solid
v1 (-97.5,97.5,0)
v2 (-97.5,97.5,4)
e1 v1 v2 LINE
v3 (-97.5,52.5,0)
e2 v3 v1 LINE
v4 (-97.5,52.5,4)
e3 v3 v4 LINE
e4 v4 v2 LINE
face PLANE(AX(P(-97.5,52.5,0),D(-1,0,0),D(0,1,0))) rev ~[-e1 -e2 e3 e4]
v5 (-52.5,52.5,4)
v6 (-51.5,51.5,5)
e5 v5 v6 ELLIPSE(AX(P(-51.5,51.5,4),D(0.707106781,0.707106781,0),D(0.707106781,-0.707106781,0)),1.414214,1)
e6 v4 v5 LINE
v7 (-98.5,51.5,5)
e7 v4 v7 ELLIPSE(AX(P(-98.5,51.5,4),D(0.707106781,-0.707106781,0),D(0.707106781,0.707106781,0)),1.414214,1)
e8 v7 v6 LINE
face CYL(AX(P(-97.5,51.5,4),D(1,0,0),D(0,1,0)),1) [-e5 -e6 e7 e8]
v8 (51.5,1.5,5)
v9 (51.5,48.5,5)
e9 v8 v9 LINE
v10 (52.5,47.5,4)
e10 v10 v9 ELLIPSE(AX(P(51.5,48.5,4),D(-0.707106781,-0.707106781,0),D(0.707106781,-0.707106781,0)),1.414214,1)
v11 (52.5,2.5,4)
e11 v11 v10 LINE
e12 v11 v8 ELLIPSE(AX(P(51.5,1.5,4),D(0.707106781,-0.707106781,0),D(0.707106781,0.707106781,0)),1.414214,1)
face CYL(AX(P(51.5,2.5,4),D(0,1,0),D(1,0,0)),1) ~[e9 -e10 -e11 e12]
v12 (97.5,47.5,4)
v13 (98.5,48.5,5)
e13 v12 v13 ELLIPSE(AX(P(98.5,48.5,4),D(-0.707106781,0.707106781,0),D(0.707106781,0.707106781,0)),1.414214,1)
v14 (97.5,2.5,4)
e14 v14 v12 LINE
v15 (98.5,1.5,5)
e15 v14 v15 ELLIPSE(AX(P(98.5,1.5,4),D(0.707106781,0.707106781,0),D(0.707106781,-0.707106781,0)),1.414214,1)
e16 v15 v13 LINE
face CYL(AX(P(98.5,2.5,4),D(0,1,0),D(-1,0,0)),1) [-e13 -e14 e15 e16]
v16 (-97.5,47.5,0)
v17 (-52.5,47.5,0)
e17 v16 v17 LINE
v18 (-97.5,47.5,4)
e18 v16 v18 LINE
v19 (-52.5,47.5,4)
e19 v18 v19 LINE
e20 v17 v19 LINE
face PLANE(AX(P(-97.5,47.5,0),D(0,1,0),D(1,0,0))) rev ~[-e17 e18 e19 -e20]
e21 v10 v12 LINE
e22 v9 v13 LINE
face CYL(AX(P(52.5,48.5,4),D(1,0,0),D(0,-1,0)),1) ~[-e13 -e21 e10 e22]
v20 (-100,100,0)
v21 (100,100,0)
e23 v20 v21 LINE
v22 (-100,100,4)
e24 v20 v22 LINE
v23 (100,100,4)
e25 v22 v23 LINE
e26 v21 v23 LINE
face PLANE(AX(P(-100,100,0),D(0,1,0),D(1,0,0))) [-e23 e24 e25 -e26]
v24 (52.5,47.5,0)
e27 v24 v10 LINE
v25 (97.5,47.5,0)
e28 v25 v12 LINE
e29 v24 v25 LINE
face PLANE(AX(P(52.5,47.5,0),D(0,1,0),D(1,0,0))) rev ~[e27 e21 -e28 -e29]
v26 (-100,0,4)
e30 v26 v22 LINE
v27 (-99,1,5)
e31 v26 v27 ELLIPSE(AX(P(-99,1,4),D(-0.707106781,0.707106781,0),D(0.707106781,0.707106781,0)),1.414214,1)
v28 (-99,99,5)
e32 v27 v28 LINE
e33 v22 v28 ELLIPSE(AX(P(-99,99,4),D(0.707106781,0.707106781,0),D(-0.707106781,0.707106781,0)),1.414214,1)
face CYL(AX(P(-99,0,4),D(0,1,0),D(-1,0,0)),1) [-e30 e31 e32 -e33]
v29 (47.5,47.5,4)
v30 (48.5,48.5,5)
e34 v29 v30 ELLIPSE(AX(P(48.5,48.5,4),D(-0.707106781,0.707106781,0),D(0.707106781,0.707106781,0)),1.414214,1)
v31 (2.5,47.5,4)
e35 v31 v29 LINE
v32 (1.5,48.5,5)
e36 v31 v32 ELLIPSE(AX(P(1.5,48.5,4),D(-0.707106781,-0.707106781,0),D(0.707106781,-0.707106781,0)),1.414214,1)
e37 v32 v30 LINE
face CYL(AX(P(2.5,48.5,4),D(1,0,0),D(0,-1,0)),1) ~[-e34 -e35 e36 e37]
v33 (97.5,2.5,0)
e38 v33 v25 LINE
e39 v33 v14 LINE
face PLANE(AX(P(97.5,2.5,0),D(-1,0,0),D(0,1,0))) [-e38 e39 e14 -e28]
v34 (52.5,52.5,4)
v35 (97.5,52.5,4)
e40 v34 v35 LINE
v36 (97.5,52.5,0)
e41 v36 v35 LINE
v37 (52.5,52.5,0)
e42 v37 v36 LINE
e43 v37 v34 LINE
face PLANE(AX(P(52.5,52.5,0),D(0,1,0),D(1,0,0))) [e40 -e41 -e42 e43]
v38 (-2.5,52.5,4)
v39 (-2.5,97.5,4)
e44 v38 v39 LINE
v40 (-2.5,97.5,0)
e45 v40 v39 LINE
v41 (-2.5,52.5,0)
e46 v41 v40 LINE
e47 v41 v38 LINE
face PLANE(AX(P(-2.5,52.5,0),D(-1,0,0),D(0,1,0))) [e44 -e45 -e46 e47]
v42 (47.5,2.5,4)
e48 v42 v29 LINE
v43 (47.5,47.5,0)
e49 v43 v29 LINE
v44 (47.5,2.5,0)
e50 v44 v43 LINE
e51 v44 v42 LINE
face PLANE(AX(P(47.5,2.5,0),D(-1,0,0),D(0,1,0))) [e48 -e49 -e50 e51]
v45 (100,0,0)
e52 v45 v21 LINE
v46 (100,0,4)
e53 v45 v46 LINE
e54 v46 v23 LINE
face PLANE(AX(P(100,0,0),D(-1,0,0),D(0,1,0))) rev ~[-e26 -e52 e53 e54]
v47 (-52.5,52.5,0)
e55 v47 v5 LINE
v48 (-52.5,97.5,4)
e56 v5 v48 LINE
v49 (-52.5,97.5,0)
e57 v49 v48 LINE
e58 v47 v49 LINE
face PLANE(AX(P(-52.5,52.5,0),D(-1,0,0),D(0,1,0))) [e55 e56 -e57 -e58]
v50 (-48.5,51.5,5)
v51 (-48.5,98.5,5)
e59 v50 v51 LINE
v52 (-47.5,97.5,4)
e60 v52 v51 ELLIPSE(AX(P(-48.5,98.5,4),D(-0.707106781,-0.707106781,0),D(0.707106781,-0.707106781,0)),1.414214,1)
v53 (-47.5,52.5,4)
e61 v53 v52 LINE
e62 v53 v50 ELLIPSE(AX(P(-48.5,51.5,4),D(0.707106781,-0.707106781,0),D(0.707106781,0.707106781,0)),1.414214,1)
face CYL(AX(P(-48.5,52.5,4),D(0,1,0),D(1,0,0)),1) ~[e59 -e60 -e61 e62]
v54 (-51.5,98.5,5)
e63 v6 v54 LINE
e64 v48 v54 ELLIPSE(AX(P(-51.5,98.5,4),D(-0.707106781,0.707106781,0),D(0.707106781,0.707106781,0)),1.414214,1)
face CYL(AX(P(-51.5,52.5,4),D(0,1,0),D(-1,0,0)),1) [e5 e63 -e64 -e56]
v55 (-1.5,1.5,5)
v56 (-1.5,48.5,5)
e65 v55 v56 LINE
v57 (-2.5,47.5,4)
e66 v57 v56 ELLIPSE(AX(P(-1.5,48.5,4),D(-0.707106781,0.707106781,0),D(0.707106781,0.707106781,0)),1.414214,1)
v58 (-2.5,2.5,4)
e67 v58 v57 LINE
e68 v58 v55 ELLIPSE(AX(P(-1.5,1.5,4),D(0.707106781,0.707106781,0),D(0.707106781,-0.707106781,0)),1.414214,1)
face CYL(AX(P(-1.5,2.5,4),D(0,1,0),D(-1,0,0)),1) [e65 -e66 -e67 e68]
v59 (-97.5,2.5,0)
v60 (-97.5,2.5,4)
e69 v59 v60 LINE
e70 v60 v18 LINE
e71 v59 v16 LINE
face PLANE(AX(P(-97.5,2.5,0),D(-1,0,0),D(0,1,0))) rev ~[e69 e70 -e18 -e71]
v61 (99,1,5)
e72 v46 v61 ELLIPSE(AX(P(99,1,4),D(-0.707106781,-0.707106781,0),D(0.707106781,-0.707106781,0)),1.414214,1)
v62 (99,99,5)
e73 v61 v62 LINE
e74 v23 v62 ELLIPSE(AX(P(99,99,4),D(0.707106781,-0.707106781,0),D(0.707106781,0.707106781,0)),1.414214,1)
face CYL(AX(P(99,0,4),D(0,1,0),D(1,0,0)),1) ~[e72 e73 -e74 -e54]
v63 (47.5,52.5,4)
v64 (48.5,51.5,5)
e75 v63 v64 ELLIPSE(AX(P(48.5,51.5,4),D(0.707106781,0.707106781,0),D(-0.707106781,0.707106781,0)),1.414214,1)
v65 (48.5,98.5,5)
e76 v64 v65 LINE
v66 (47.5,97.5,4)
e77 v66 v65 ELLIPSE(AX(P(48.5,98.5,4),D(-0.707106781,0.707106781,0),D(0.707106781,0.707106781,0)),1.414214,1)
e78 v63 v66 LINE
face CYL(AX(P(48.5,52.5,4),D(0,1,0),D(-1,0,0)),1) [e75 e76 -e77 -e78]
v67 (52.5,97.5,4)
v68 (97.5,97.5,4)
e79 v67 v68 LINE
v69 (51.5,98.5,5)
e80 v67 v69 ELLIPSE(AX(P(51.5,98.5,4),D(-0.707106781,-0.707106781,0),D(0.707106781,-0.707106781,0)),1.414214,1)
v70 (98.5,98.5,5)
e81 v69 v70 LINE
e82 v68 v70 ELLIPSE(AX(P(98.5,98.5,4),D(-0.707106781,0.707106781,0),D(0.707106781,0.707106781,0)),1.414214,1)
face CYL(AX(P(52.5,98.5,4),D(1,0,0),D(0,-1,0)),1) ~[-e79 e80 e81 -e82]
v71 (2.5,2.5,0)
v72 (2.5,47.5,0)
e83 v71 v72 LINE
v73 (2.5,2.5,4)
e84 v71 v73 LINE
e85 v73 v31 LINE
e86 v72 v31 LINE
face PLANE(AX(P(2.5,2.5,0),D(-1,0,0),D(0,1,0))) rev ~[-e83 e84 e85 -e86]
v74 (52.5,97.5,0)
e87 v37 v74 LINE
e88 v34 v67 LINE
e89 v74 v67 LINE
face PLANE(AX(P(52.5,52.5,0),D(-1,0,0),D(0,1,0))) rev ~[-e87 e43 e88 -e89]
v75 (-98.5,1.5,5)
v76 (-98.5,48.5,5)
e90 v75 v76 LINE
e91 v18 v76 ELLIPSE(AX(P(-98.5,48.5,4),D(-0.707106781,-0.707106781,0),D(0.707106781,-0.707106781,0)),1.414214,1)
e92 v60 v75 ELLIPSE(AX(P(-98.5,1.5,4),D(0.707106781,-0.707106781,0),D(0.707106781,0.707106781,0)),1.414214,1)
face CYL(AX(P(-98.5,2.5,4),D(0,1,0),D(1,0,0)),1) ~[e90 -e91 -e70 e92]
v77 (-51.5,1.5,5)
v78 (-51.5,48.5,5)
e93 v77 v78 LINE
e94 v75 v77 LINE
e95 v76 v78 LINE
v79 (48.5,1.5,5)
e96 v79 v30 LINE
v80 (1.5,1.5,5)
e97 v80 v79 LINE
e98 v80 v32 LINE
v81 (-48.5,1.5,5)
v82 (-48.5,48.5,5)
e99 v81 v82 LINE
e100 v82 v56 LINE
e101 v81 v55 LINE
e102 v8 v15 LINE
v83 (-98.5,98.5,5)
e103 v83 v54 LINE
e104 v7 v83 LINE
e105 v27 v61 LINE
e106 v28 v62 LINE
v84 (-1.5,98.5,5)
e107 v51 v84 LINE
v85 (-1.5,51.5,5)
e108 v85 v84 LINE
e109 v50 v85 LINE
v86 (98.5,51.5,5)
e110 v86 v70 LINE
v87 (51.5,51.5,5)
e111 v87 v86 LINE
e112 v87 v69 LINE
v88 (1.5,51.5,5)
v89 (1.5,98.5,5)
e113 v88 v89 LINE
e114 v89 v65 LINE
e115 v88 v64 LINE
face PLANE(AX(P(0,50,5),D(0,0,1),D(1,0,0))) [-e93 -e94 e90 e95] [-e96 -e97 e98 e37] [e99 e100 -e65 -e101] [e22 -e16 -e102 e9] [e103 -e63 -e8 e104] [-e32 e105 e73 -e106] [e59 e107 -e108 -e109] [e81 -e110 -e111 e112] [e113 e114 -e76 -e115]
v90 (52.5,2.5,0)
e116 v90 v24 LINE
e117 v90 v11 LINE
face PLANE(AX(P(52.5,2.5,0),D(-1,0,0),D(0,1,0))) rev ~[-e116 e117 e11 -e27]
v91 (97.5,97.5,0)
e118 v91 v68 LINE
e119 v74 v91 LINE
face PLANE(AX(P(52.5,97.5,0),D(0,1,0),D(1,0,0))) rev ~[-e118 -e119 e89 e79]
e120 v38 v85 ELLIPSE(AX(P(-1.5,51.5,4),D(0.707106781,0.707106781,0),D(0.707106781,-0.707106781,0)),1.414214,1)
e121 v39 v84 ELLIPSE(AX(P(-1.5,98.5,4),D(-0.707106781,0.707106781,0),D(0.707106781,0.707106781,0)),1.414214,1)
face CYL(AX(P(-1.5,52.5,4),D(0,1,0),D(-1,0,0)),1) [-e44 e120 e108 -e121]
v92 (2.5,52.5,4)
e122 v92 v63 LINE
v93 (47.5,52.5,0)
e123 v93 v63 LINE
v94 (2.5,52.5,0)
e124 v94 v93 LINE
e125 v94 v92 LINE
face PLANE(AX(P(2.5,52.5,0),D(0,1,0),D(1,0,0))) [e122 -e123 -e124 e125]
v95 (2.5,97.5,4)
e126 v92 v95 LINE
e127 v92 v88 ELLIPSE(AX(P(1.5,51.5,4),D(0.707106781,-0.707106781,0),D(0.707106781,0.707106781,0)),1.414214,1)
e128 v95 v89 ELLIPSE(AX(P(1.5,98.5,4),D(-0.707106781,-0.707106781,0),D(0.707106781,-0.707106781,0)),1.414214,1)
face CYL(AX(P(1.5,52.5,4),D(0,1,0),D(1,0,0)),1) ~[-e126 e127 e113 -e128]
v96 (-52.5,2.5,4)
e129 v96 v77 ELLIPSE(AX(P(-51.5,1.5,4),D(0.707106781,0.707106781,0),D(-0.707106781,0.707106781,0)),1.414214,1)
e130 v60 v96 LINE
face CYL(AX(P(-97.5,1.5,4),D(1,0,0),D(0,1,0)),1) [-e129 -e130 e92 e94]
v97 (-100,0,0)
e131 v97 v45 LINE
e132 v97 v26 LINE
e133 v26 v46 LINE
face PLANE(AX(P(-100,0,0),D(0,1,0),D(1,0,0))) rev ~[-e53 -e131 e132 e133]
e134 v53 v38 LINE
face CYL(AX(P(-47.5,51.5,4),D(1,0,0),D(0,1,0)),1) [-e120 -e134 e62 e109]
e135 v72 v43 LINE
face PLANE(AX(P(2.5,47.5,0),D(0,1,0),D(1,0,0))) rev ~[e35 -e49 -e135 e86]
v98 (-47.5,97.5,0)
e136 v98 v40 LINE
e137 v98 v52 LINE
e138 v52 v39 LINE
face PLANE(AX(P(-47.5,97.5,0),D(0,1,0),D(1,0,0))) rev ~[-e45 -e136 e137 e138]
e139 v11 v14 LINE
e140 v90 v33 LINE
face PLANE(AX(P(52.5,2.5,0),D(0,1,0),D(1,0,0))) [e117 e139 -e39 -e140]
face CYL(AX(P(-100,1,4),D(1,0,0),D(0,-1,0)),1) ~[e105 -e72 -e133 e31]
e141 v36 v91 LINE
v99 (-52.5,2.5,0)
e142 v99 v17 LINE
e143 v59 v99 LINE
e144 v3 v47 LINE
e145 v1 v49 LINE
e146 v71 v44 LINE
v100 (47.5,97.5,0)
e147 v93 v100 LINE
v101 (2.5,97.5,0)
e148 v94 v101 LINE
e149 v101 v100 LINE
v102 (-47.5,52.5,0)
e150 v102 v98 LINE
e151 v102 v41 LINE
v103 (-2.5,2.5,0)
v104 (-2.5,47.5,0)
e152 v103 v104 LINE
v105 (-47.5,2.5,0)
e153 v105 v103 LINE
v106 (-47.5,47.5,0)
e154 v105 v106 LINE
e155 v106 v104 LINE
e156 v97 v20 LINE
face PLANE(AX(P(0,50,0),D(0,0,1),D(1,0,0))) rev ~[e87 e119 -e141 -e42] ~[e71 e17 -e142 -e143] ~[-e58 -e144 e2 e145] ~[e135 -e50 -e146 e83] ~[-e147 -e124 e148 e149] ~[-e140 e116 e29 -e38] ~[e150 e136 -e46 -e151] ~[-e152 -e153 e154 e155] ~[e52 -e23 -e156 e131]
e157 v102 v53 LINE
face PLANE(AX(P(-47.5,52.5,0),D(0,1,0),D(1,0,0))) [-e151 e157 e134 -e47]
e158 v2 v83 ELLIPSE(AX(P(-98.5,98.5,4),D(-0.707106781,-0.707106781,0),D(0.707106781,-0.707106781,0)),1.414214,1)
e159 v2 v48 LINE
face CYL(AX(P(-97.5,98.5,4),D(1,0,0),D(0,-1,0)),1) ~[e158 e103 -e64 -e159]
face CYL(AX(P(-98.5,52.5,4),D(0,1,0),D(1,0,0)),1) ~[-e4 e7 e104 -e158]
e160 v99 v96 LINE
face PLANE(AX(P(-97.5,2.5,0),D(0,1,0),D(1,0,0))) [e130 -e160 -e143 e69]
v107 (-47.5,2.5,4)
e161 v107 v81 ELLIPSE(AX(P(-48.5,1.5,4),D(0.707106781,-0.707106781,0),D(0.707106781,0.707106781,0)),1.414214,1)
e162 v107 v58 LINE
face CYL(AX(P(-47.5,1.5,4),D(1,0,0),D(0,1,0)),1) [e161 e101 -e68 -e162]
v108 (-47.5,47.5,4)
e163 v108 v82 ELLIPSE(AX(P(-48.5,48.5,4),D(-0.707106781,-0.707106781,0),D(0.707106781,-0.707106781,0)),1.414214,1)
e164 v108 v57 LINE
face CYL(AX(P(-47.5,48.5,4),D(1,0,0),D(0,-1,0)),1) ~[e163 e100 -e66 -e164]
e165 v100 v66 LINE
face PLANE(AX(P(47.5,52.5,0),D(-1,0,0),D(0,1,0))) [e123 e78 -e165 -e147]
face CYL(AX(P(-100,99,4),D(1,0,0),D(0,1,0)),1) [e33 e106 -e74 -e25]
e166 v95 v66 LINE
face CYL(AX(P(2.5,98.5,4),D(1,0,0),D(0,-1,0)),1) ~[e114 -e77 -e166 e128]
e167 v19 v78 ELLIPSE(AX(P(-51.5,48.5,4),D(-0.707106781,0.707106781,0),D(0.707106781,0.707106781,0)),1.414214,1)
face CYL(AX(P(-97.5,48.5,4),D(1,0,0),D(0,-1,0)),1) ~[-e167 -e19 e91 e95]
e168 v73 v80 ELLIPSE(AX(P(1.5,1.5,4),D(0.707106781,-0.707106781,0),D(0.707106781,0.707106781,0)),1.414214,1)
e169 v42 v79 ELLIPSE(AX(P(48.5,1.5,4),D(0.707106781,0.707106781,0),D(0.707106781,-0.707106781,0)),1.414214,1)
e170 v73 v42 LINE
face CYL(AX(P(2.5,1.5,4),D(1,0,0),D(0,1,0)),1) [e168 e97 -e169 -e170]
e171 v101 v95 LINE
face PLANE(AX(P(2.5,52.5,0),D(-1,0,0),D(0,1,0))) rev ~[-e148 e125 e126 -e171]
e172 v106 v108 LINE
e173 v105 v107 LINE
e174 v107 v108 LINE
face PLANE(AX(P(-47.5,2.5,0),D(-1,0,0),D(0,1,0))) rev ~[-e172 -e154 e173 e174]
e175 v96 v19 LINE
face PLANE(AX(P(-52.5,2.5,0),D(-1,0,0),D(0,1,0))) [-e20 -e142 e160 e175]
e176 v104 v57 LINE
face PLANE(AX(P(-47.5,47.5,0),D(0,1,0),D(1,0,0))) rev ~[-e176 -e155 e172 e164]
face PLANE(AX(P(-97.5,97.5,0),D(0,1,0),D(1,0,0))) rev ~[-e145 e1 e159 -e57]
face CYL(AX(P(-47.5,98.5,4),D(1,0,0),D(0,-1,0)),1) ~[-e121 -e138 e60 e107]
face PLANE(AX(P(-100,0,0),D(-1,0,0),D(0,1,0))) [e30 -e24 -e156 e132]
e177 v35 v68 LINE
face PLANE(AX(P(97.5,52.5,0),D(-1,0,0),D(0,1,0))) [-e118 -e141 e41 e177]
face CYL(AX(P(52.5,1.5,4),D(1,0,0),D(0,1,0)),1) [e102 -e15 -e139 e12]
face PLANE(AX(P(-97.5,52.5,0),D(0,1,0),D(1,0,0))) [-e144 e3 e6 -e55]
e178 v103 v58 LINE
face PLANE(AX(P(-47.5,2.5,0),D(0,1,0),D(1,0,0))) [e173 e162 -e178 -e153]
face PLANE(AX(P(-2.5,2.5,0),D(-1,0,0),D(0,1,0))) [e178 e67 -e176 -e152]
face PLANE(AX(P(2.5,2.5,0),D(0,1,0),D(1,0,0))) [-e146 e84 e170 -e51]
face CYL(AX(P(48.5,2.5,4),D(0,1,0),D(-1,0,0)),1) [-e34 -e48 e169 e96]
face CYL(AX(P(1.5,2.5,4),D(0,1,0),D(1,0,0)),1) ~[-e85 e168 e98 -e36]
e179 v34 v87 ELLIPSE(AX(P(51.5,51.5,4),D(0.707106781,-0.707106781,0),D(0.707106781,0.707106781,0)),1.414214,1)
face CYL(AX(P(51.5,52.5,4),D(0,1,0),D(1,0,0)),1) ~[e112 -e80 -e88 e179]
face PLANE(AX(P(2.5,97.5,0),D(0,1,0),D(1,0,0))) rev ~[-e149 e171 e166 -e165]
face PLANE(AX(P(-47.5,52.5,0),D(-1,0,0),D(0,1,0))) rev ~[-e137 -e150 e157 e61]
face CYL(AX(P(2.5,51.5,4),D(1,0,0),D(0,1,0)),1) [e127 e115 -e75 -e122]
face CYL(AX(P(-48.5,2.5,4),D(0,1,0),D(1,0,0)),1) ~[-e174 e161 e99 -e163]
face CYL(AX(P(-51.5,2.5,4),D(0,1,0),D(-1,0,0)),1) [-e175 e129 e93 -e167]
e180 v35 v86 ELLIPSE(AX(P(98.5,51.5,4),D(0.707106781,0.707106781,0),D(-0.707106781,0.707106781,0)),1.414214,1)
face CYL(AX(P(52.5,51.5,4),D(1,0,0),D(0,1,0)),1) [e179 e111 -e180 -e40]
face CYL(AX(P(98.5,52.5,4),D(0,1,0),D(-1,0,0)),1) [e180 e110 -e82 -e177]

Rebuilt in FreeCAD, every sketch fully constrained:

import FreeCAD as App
import Part
import Sketcher

V = App.Vector
Q = App.Units.Quantity


def edges_at(feature, points):
    """Names of the edges that pass closest to the given points."""
    edges = feature.Shape.Edges
    near = lambda p: min(range(len(edges)), key=lambda i: edges[i].distToShape(Part.Vertex(*p))[0])
    return sorted({f"Edge{near(p) + 1}" for p in points})


def add_polygon(sketch, points):
    """Adds a closed chain of lines whose ends are joined by coincident constraints."""
    first, n = sketch.GeometryCount, len(points)
    for a, b in zip(points, points[1:] + points[:1]):
        sketch.addGeometry(Part.LineSegment(App.Vector(*a, 0), App.Vector(*b, 0)), False)
    for i in range(n):
        sketch.addConstraint(Sketcher.Constraint("Coincident", first + i, 2, first + (i + 1) % n, 1))

doc = App.newDocument("Part")
body = doc.addObject("PartDesign::Body", "Body")

# Sketch on XY plane
sketch1 = body.newObject("Sketcher::SketchObject", "Sketch")
sketch1.AttachmentSupport = (doc.getObject("XY_Plane"), [""])
sketch1.MapMode = "FlatFace"
add_polygon(sketch1, [(-100, 100), (-100, 0), (100, 0), (100, 100)])  # lines 0-3
add_polygon(sketch1, [(-52, 2), (-98, 2), (-98, 48), (-52, 48)])  # lines 4-7
add_polygon(sketch1, [(-2, 2), (-48, 2), (-48, 48), (-2, 48)])  # lines 8-11
add_polygon(sketch1, [(48, 2), (2, 2), (2, 48), (48, 48)])  # lines 12-15
add_polygon(sketch1, [(98, 2), (52, 2), (52, 48), (98, 48)])  # lines 16-19
add_polygon(sketch1, [(-52, 52), (-98, 52), (-98, 98), (-52, 98)])  # lines 20-23
add_polygon(sketch1, [(-2, 52), (-48, 52), (-48, 98), (-2, 98)])  # lines 24-27
add_polygon(sketch1, [(48, 52), (2, 52), (2, 98), (48, 98)])  # lines 28-31
add_polygon(sketch1, [(98, 52), (52, 52), (52, 98), (98, 98)])  # lines 32-35
sketch1.addConstraint(Sketcher.Constraint("Vertical", 0))
sketch1.addConstraint(Sketcher.Constraint("Horizontal", 1))
sketch1.addConstraint(Sketcher.Constraint("Vertical", 2))
sketch1.addConstraint(Sketcher.Constraint("Horizontal", 3))
sketch1.addConstraint(Sketcher.Constraint("Horizontal", 4))
sketch1.addConstraint(Sketcher.Constraint("Vertical", 5))
sketch1.addConstraint(Sketcher.Constraint("Horizontal", 6))
sketch1.addConstraint(Sketcher.Constraint("Vertical", 7))
sketch1.addConstraint(Sketcher.Constraint("Horizontal", 8))
sketch1.addConstraint(Sketcher.Constraint("Vertical", 9))
sketch1.addConstraint(Sketcher.Constraint("Horizontal", 10))
sketch1.addConstraint(Sketcher.Constraint("Vertical", 11))
sketch1.addConstraint(Sketcher.Constraint("Horizontal", 12))
sketch1.addConstraint(Sketcher.Constraint("Vertical", 13))
sketch1.addConstraint(Sketcher.Constraint("Horizontal", 14))
sketch1.addConstraint(Sketcher.Constraint("Vertical", 15))
sketch1.addConstraint(Sketcher.Constraint("Horizontal", 16))
sketch1.addConstraint(Sketcher.Constraint("Vertical", 17))
sketch1.addConstraint(Sketcher.Constraint("Horizontal", 18))
sketch1.addConstraint(Sketcher.Constraint("Vertical", 19))
sketch1.addConstraint(Sketcher.Constraint("Horizontal", 20))
sketch1.addConstraint(Sketcher.Constraint("Vertical", 21))
sketch1.addConstraint(Sketcher.Constraint("Horizontal", 22))
sketch1.addConstraint(Sketcher.Constraint("Vertical", 23))
sketch1.addConstraint(Sketcher.Constraint("Horizontal", 24))
sketch1.addConstraint(Sketcher.Constraint("Vertical", 25))
sketch1.addConstraint(Sketcher.Constraint("Horizontal", 26))
sketch1.addConstraint(Sketcher.Constraint("Vertical", 27))
sketch1.addConstraint(Sketcher.Constraint("Horizontal", 28))
sketch1.addConstraint(Sketcher.Constraint("Vertical", 29))
sketch1.addConstraint(Sketcher.Constraint("Horizontal", 30))
sketch1.addConstraint(Sketcher.Constraint("Vertical", 31))
sketch1.addConstraint(Sketcher.Constraint("Horizontal", 32))
sketch1.addConstraint(Sketcher.Constraint("Vertical", 33))
sketch1.addConstraint(Sketcher.Constraint("Horizontal", 34))
sketch1.addConstraint(Sketcher.Constraint("Vertical", 35))
sketch1.addConstraint(Sketcher.Constraint("Symmetric", 0, 2, 1, 2, -1, 1))
sketch1.addConstraint(Sketcher.Constraint("Symmetric", 11, 2, 12, 2, -2))
sketch1.addConstraint(Sketcher.Constraint("Symmetric", 9, 2, 14, 2, -2))
sketch1.addConstraint(Sketcher.Constraint("Symmetric", 7, 2, 16, 2, -2))
sketch1.addConstraint(Sketcher.Constraint("Symmetric", 5, 2, 18, 2, -2))
sketch1.addConstraint(Sketcher.Constraint("Symmetric", 27, 2, 28, 2, -2))
sketch1.addConstraint(Sketcher.Constraint("Symmetric", 25, 2, 30, 2, -2))
sketch1.addConstraint(Sketcher.Constraint("Symmetric", 23, 2, 32, 2, -2))
sketch1.addConstraint(Sketcher.Constraint("Symmetric", 21, 2, 34, 2, -2))
sketch1.addConstraint(Sketcher.Constraint("Horizontal", 7, 2, 8, 2))
sketch1.addConstraint(Sketcher.Constraint("Horizontal", 6, 2, 9, 2))
sketch1.addConstraint(Sketcher.Constraint("Horizontal", 23, 2, 24, 2))
sketch1.addConstraint(Sketcher.Constraint("Horizontal", 22, 2, 25, 2))
sketch1.addConstraint(Sketcher.Constraint("Vertical", 5, 2, 20, 2))
sketch1.addConstraint(Sketcher.Constraint("Vertical", 7, 2, 22, 2))
sketch1.addConstraint(Sketcher.Constraint("Vertical", 9, 2, 24, 2))
sketch1.addConstraint(Sketcher.Constraint("Vertical", 11, 2, 26, 2))
sketch1.addConstraint(Sketcher.Constraint("Equal", 6, 8))
sketch1.addConstraint(Sketcher.Constraint("Equal", 34, 5))
sketch1.addConstraint(Sketcher.Constraint("Equal", 19, 21))
sketch1.addConstraint(Sketcher.Constraint("DistanceX", 1, 1, 1, 2, Q("200 mm")))
sketch1.addConstraint(Sketcher.Constraint("DistanceX", 4, 2, 4, 1, Q("45 mm")))
sketch1.addConstraint(Sketcher.Constraint("DistanceY", 0, 2, 0, 1, Q("100 mm")))
sketch1.addConstraint(Sketcher.Constraint("DistanceX", 7, 2, 8, 2, Q("5 mm")))
sketch1.addConstraint(Sketcher.Constraint("DistanceX", 11, 2, 12, 2, Q("5 mm")))
sketch1.addConstraint(Sketcher.Constraint("DistanceY", 5, 2, 20, 2, Q("5 mm")))
sketch1.addConstraint(Sketcher.Constraint("DistanceY", -1, 1, 4, 2, Q("2.5 mm")))
pad1 = body.newObject("PartDesign::Pad", "Pad")
pad1.Profile = sketch1
pad1.Length = 5
doc.recompute()

fillet = body.newObject("PartDesign::Fillet", "Fillet")
fillet.Base = (pad1, edges_at(pad1, [
    (-75, 97.5, 5),
    (-97.5, 75, 5),
    (-75, 52.5, 5),
    (-52.5, 75, 5),
    (-100, 50, 5),
    (-25, 47.5, 5),
    (0, 0, 5),
    (-47.5, 25, 5),
    (-25, 2.5, 5),
    (-2.5, 25, 5),
    (25, 47.5, 5),
    (2.5, 25, 5),
    (25, 2.5, 5),
    (47.5, 25, 5),
    (75, 47.5, 5),
    (52.5, 25, 5),
    (75, 2.5, 5),
    (97.5, 25, 5),
    (100, 50, 5),
    (-25, 97.5, 5),
    (-47.5, 75, 5),
    (-25, 52.5, 5),
    (-2.5, 75, 5),
    (47.5, 75, 5),
    (25, 97.5, 5),
    (2.5, 75, 5),
    (25, 52.5, 5),
    (97.5, 75, 5),
    (75, 97.5, 5),
    (52.5, 75, 5),
    (75, 52.5, 5),
    (0, 100, 5),
    (-52.5, 25, 5),
    (-75, 47.5, 5),
    (-97.5, 25, 5),
    (-75, 2.5, 5),
]))
fillet.Radius = 1

doc.recompute()
